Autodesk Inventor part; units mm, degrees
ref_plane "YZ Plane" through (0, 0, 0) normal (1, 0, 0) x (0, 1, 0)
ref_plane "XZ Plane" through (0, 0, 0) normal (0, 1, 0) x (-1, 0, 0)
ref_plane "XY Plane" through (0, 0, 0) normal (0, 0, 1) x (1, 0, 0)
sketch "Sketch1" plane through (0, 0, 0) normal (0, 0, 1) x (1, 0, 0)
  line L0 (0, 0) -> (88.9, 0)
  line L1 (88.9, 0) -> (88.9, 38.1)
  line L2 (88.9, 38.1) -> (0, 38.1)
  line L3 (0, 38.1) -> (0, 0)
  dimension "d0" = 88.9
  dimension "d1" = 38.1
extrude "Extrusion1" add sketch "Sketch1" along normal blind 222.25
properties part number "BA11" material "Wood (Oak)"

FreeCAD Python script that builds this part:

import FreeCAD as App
import Part
import Sketcher
from FreeCAD import Vector
Q = App.Units.Quantity


def add_polygon(sketch, points):
    """Adds a closed chain of lines whose ends are joined by coincident constraints."""
    first, n = sketch.GeometryCount, len(points)
    for a, b in zip(points, points[1:] + points[:1]):
        sketch.addGeometry(Part.LineSegment(App.Vector(*a, 0), App.Vector(*b, 0)), False)
    for i in range(n):
        sketch.addConstraint(Sketcher.Constraint("Coincident", first + i, 2, first + (i + 1) % n, 1))

doc = App.newDocument("Part")
params = doc.addObject("Spreadsheet::Sheet", "Params")
for row, (alias, value) in enumerate([
    ("sketch1_width", "3.5 in"),
    ("sketch1_height", "1.5 in"),
    ("pad1_length", "8.75 in"),
], start=1):
    params.set(f"A{row}", alias)
    params.set(f"B{row}", "=" + value)
    params.setAlias(f"B{row}", alias)

body = doc.addObject("PartDesign::Body", "Body")

# Sketch on XY plane
sketch1 = doc.addObject("Sketcher::SketchObject", "Sketch")
body.addObject(sketch1)
sketch1.AttachmentSupport = (doc.XY_Plane, [""])
sketch1.MapMode = "FlatFace"
add_polygon(sketch1, [(0, 38.1), (0, 0), (88.9, 0), (88.9, 38.1)])  # lines 0-3
sketch1.addConstraint(Sketcher.Constraint("Vertical", 0))
sketch1.addConstraint(Sketcher.Constraint("Horizontal", 1))
sketch1.addConstraint(Sketcher.Constraint("Vertical", 2))
sketch1.addConstraint(Sketcher.Constraint("Horizontal", 3))
sketch1.addConstraint(Sketcher.Constraint("Coincident", 0, 2, -1, 1))
sketch1.addConstraint(Sketcher.Constraint("DistanceX", 1, 1, 1, 2, Q("3.5 in")))
sketch1.addConstraint(Sketcher.Constraint("DistanceY", 0, 2, 0, 1, Q("1.5 in")))
sketch1.setExpression("Constraints[9]", "Params.sketch1_width")
sketch1.setExpression("Constraints[10]", "Params.sketch1_height")
pad1 = doc.addObject("PartDesign::Pad", "Pad")
body.addObject(pad1)
pad1.Profile = sketch1
pad1.setExpression("Length", "Params.pad1_length")

doc.recompute()
